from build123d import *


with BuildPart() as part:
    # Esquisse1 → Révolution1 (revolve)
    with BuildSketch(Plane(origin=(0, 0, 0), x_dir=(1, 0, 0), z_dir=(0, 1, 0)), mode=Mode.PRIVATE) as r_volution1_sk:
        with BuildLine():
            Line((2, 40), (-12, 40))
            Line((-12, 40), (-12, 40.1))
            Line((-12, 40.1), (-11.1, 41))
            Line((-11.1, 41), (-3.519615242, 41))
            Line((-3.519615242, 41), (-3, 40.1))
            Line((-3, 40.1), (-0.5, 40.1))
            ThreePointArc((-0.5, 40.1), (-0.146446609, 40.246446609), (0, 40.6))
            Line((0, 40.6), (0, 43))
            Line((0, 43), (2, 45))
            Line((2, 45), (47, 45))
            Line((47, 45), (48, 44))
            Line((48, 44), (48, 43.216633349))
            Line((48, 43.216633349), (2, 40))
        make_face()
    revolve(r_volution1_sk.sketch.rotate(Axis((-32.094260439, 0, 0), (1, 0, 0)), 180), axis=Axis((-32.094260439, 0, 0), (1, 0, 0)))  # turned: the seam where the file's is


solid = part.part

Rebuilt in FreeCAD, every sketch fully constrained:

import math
import FreeCAD as App
import Part
import Sketcher
Q = App.Units.Quantity

doc = App.newDocument("Part")
body = doc.addObject("PartDesign::Body", "Body")

# Sketch on XZ plane
sketch1 = body.newObject("Sketcher::SketchObject", "Sketch")
sketch1.AttachmentSupport = (doc.getObject("XZ_Plane"), [""])
sketch1.MapMode = "FlatFace"
sketch1.addGeometry([
    Part.LineSegment(App.Vector(-12, -40, 0), App.Vector(2, -40, 0)),  # 0
    Part.LineSegment(App.Vector(2, -40, 0), App.Vector(48, -43.22, 0)),  # 1
    Part.LineSegment(App.Vector(48, -43.22, 0), App.Vector(48, -44, 0)),  # 2
    Part.LineSegment(App.Vector(48, -44, 0), App.Vector(47, -45, 0)),  # 3
    Part.LineSegment(App.Vector(47, -45, 0), App.Vector(2, -45, 0)),  # 4
    Part.LineSegment(App.Vector(2, -45, 0), App.Vector(0, -43, 0)),  # 5
    Part.LineSegment(App.Vector(0, -43, 0), App.Vector(0, -40.6, 0)),  # 6
    Part.ArcOfCircle(Part.Circle(App.Vector(-0.5, -40.6, 0), App.Vector(0, 0, 1), 0.5), math.radians(0), math.radians(90)),  # 7
    Part.LineSegment(App.Vector(-0.5, -40.1, 0), App.Vector(-3, -40.1, 0)),  # 8
    Part.LineSegment(App.Vector(-3, -40.1, 0), App.Vector(-3.52, -41, 0)),  # 9
    Part.LineSegment(App.Vector(-3.52, -41, 0), App.Vector(-11.1, -41, 0)),  # 10
    Part.LineSegment(App.Vector(-11.1, -41, 0), App.Vector(-12, -40.1, 0)),  # 11
    Part.LineSegment(App.Vector(-12, -40.1, 0), App.Vector(-12, -40, 0)),  # 12
], False)
sketch1.addConstraint([
    Sketcher.Constraint("Coincident", 0, 2, 1, 1),
    Sketcher.Constraint("Coincident", 1, 2, 2, 1),
    Sketcher.Constraint("Coincident", 2, 2, 3, 1),
    Sketcher.Constraint("Coincident", 3, 2, 4, 1),
    Sketcher.Constraint("Coincident", 4, 2, 5, 1),
    Sketcher.Constraint("Coincident", 5, 2, 6, 1),
    Sketcher.Constraint("Tangent", 6, 2, 7, 1),
    Sketcher.Constraint("Tangent", 7, 2, 8, 1),
    Sketcher.Constraint("Coincident", 8, 2, 9, 1),
    Sketcher.Constraint("Coincident", 9, 2, 10, 1),
    Sketcher.Constraint("Coincident", 10, 2, 11, 1),
    Sketcher.Constraint("Coincident", 11, 2, 12, 1),
    Sketcher.Constraint("Coincident", 12, 2, 0, 1),
    Sketcher.Constraint("Horizontal", 0),
    Sketcher.Constraint("Vertical", 2),
    Sketcher.Constraint("Horizontal", 4),
    Sketcher.Constraint("Vertical", 6),
    Sketcher.Constraint("Horizontal", 8),
    Sketcher.Constraint("Horizontal", 10),
    Sketcher.Constraint("Vertical", 12),
    Sketcher.Constraint("PointOnObject", 5, 2, -2),
    Sketcher.Constraint("Perpendicular", 3, 5),
    Sketcher.Constraint("Parallel", 5, 11),
    Sketcher.Constraint("Horizontal", 8, 2, 11, 2),
    Sketcher.Constraint("Vertical", 0, 2, 4, 2),
    Sketcher.Constraint("Radius", 7, Q("0.5 mm")),
    Sketcher.Constraint("DistanceX", 0, 1, 0, 2, Q("14 mm")),
    Sketcher.Constraint("DistanceX", 4, 2, 4, 1, Q("45 mm")),
    Sketcher.Constraint("Angle", 1, Q("-4 deg")),
    Sketcher.Constraint("Angle", 3, Q("-135 deg")),
    Sketcher.Constraint("Angle", 9, Q("-120 deg")),
    Sketcher.Constraint("DistanceX", 8, 2, 8, 1, Q("2.5 mm")),
    Sketcher.Constraint("DistanceY", 6, 1, 6, 2, Q("2.4 mm")),
    Sketcher.Constraint("DistanceY", 12, 1, 12, 2, Q("0.1 mm")),
    Sketcher.Constraint("DistanceX", -1, 1, 0, 2, Q("2 mm")),
    Sketcher.Constraint("DistanceY", 0, 2, -1, 1, Q("40 mm")),
    Sketcher.Constraint("DistanceX", -1, 1, 1, 2, Q("48 mm")),
    Sketcher.Constraint("DistanceY", 9, 2, -1, 1, Q("41 mm")),
])
revolution = body.newObject("PartDesign::Revolution", "Revolution")
revolution.Profile = sketch1
revolution.ReferenceAxis = (sketch1, ["H_Axis"])
revolution.Angle = 360

doc.recompute()
